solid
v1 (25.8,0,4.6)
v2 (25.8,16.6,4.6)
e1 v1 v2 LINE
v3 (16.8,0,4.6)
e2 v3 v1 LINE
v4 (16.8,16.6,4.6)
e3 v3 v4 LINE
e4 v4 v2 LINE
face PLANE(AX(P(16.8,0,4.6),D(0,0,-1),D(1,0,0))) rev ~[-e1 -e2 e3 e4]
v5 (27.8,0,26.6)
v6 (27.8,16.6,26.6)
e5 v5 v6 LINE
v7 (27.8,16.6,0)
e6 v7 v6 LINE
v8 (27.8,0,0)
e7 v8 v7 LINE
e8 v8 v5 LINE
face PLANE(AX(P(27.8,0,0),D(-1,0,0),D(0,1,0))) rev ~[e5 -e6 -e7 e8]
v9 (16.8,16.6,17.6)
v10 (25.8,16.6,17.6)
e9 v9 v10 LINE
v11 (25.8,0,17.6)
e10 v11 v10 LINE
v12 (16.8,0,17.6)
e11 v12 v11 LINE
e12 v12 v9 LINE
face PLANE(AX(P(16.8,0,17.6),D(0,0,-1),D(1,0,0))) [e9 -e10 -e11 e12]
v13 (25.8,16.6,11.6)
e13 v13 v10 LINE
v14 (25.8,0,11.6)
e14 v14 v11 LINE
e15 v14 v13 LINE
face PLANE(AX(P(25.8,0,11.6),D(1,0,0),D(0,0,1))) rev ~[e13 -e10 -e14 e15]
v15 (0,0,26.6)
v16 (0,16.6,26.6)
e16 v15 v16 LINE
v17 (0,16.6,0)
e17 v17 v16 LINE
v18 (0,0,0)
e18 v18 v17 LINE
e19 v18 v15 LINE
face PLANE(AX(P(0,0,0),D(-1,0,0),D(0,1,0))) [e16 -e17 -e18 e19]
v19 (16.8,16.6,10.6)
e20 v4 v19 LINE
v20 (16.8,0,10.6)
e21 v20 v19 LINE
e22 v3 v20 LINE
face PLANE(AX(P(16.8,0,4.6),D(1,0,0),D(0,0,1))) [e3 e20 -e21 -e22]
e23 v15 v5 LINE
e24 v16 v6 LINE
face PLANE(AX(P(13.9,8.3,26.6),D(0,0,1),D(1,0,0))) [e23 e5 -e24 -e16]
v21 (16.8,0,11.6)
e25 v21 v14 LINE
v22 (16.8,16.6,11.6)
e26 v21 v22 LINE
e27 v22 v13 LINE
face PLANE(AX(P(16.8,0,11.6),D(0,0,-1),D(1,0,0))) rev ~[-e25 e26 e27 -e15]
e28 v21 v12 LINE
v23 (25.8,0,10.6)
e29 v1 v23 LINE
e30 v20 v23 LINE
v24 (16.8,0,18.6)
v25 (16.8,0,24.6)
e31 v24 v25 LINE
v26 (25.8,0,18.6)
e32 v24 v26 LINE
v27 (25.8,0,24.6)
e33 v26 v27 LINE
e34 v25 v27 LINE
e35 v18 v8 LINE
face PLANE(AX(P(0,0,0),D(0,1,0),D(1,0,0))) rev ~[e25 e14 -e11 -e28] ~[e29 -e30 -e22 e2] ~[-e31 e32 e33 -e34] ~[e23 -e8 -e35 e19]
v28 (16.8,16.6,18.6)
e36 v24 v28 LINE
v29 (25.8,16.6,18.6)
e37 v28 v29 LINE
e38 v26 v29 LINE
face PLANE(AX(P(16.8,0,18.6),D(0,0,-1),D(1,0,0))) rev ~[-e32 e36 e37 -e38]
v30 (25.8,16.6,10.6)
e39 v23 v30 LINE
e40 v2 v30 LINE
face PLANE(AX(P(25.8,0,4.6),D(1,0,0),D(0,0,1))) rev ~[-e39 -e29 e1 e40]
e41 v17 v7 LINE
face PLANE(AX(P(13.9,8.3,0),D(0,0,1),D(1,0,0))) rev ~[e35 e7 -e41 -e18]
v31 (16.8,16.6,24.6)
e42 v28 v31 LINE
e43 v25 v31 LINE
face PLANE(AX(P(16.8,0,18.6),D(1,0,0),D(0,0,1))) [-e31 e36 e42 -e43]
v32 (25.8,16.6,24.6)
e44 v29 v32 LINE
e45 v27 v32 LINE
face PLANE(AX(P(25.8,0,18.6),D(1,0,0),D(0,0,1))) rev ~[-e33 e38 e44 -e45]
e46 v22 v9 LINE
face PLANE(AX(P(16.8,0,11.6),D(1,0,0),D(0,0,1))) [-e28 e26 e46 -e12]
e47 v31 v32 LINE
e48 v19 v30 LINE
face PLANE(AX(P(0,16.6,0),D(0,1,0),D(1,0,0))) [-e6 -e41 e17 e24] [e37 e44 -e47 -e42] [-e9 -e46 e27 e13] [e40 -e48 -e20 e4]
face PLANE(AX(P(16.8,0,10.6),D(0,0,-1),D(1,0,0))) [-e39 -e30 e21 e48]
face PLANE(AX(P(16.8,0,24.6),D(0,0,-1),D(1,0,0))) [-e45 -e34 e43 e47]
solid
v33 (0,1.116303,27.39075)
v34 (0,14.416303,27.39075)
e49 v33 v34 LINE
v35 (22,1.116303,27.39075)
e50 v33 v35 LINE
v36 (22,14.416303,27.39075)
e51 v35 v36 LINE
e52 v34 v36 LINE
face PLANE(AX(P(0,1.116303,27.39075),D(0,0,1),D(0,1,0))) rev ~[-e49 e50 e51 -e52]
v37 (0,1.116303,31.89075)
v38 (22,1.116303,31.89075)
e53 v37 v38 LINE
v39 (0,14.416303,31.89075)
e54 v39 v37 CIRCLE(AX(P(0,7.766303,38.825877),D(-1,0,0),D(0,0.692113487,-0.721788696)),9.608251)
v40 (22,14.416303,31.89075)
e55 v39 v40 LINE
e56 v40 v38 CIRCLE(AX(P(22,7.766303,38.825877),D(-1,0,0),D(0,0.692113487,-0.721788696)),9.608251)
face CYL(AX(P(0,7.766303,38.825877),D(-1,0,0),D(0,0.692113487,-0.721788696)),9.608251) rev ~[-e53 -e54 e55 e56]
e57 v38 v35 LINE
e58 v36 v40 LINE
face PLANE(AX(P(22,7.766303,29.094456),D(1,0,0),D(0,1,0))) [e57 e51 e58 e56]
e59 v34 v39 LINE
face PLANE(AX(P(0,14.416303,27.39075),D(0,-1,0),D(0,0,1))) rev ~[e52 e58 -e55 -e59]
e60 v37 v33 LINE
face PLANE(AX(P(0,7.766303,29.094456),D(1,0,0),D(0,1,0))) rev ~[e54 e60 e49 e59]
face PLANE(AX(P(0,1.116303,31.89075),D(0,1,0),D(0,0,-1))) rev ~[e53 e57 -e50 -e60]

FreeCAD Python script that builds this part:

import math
import FreeCAD as App
import Part
import Sketcher
from FreeCAD import Vector

doc = App.newDocument("Part")
body = doc.addObject("PartDesign::Body", "Body")

# Sketch on XY plane
sketch1 = body.newObject("Sketcher::SketchObject", "Sketch")
sketch1.AttachmentSupport = (doc.getObject("XY_Plane"), [""])
sketch1.MapMode = "FlatFace"
sketch1.addGeometry(Part.LineSegment(Vector(0, 17, 0), Vector(0, 0, 0)), False)
sketch1.addGeometry(Part.LineSegment(Vector(0, 0, 0), Vector(28, 0, 0)), False)
sketch1.addGeometry(Part.LineSegment(Vector(28, 0, 0), Vector(28, 17, 0)), False)
sketch1.addGeometry(Part.LineSegment(Vector(28, 17, 0), Vector(0, 17, 0)), False)
sketch1.addConstraint(Sketcher.Constraint("Coincident", 0, 2, 1, 1))
sketch1.addConstraint(Sketcher.Constraint("Coincident", 1, 2, 2, 1))
sketch1.addConstraint(Sketcher.Constraint("Coincident", 2, 2, 3, 1))
sketch1.addConstraint(Sketcher.Constraint("Coincident", 3, 2, 0, 1))
sketch1.addConstraint(Sketcher.Constraint("Vertical", 0))
sketch1.addConstraint(Sketcher.Constraint("Horizontal", 1))
sketch1.addConstraint(Sketcher.Constraint("Vertical", 2))
sketch1.addConstraint(Sketcher.Constraint("Horizontal", 3))
sketch1.addConstraint(Sketcher.Constraint("Coincident", 0, 2, -1, 1))
sketch1.addConstraint(Sketcher.Constraint("DistanceX", 1, 1, 1, 2, 27.8))
sketch1.addConstraint(Sketcher.Constraint("DistanceY", 0, 2, 0, 1, 16.6))
pad1 = body.newObject("PartDesign::Pad", "Pad")
pad1.Profile = sketch1
pad1.Length = 26.6

# Sketch on XZ plane
sketch2 = body.newObject("Sketcher::SketchObject", "Sketch001")
sketch2.AttachmentSupport = (doc.getObject("XZ_Plane"), [""])
sketch2.MapMode = "FlatFace"
sketch2.addGeometry(Part.LineSegment(Vector(17, 25, 0), Vector(17, 19, 0)), False)
sketch2.addGeometry(Part.LineSegment(Vector(17, 19, 0), Vector(26, 19, 0)), False)
sketch2.addGeometry(Part.LineSegment(Vector(26, 19, 0), Vector(26, 25, 0)), False)
sketch2.addGeometry(Part.LineSegment(Vector(26, 25, 0), Vector(17, 25, 0)), False)
sketch2.addGeometry(Part.LineSegment(Vector(17, 18, 0), Vector(17, 12, 0)), False)
sketch2.addGeometry(Part.LineSegment(Vector(17, 12, 0), Vector(26, 12, 0)), False)
sketch2.addGeometry(Part.LineSegment(Vector(26, 12, 0), Vector(26, 18, 0)), False)
sketch2.addGeometry(Part.LineSegment(Vector(26, 18, 0), Vector(17, 18, 0)), False)
sketch2.addGeometry(Part.LineSegment(Vector(17, 11, 0), Vector(17, 5, 0)), False)
sketch2.addGeometry(Part.LineSegment(Vector(17, 5, 0), Vector(26, 5, 0)), False)
sketch2.addGeometry(Part.LineSegment(Vector(26, 5, 0), Vector(26, 11, 0)), False)
sketch2.addGeometry(Part.LineSegment(Vector(26, 11, 0), Vector(17, 11, 0)), False)
sketch2.addConstraint(Sketcher.Constraint("Coincident", 0, 2, 1, 1))
sketch2.addConstraint(Sketcher.Constraint("Coincident", 1, 2, 2, 1))
sketch2.addConstraint(Sketcher.Constraint("Coincident", 2, 2, 3, 1))
sketch2.addConstraint(Sketcher.Constraint("Coincident", 3, 2, 0, 1))
sketch2.addConstraint(Sketcher.Constraint("Coincident", 4, 2, 5, 1))
sketch2.addConstraint(Sketcher.Constraint("Coincident", 5, 2, 6, 1))
sketch2.addConstraint(Sketcher.Constraint("Coincident", 6, 2, 7, 1))
sketch2.addConstraint(Sketcher.Constraint("Coincident", 7, 2, 4, 1))
sketch2.addConstraint(Sketcher.Constraint("Coincident", 8, 2, 9, 1))
sketch2.addConstraint(Sketcher.Constraint("Coincident", 9, 2, 10, 1))
sketch2.addConstraint(Sketcher.Constraint("Coincident", 10, 2, 11, 1))
sketch2.addConstraint(Sketcher.Constraint("Coincident", 11, 2, 8, 1))
sketch2.addConstraint(Sketcher.Constraint("Vertical", 0))
sketch2.addConstraint(Sketcher.Constraint("Horizontal", 1))
sketch2.addConstraint(Sketcher.Constraint("Vertical", 2))
sketch2.addConstraint(Sketcher.Constraint("Horizontal", 3))
sketch2.addConstraint(Sketcher.Constraint("Vertical", 4))
sketch2.addConstraint(Sketcher.Constraint("Horizontal", 5))
sketch2.addConstraint(Sketcher.Constraint("Vertical", 6))
sketch2.addConstraint(Sketcher.Constraint("Horizontal", 7))
sketch2.addConstraint(Sketcher.Constraint("Vertical", 8))
sketch2.addConstraint(Sketcher.Constraint("Horizontal", 9))
sketch2.addConstraint(Sketcher.Constraint("Vertical", 10))
sketch2.addConstraint(Sketcher.Constraint("Horizontal", 11))
sketch2.addConstraint(Sketcher.Constraint("Vertical", 3, 2, 4, 2))
sketch2.addConstraint(Sketcher.Constraint("Vertical", 2, 2, 5, 2))
sketch2.addConstraint(Sketcher.Constraint("Vertical", 7, 2, 8, 2))
sketch2.addConstraint(Sketcher.Constraint("Vertical", 6, 2, 9, 2))
sketch2.addConstraint(Sketcher.Constraint("Equal", 2, 4))
sketch2.addConstraint(Sketcher.Constraint("Equal", 6, 8))
sketch2.addConstraint(Sketcher.Constraint("DistanceX", 1, 1, 1, 2, 9.0))
sketch2.addConstraint(Sketcher.Constraint("DistanceY", 0, 2, 0, 1, 6.0))
sketch2.addConstraint(Sketcher.Constraint("DistanceY", 4, 2, 0, 2, 7.0))
sketch2.addConstraint(Sketcher.Constraint("DistanceY", 8, 2, 4, 2, 7.0))
sketch2.addConstraint(Sketcher.Constraint("DistanceX", -1, 1, 0, 2, 16.8))
sketch2.addConstraint(Sketcher.Constraint("DistanceY", -1, 1, 0, 2, 18.6))
pocket1 = body.newObject("PartDesign::Pocket", "Pocket")
pocket1.Profile = sketch2
pocket1.Length = 16.6
body2 = doc.addObject("PartDesign::Body", "Body001")

# Sketch on YZ plane
sketch3 = body2.newObject("Sketcher::SketchObject", "Sketch002")
sketch3.AttachmentSupport = (doc.getObject("YZ_Plane001"), [""])
sketch3.MapMode = "FlatFace"
sketch3.addGeometry(Part.LineSegment(Vector(1.1, 27.4, 0), Vector(14.4, 27.4, 0)), False)
sketch3.addGeometry(Part.LineSegment(Vector(14.4, 27.4, 0), Vector(14.4, 31.9, 0)), False)
sketch3.addGeometry(Part.ArcOfCircle(Part.Circle(Vector(7.8, 38.8, 0), Vector(0, 0, 1), 9.6), math.radians(-134), math.radians(-46)), False)
sketch3.addGeometry(Part.LineSegment(Vector(1.1, 31.9, 0), Vector(1.1, 27.4, 0)), False)
sketch3.addConstraint(Sketcher.Constraint("Coincident", 0, 2, 1, 1))
sketch3.addConstraint(Sketcher.Constraint("Coincident", 1, 2, 2, 2))
sketch3.addConstraint(Sketcher.Constraint("Coincident", 2, 1, 3, 1))
sketch3.addConstraint(Sketcher.Constraint("Coincident", 3, 2, 0, 1))
sketch3.addConstraint(Sketcher.Constraint("Horizontal", 0))
sketch3.addConstraint(Sketcher.Constraint("Vertical", 1))
sketch3.addConstraint(Sketcher.Constraint("Vertical", 3))
sketch3.addConstraint(Sketcher.Constraint("Horizontal", 1, 2, 2, 1))
sketch3.addConstraint(Sketcher.Constraint("DistanceX", 0, 1, 0, 2, 13.3))
sketch3.addConstraint(Sketcher.Constraint("DistanceY", 1, 1, 1, 2, 4.5))
sketch3.addConstraint(Sketcher.Constraint("Radius", 2, 9.608251))
sketch3.addConstraint(Sketcher.Constraint("DistanceY", -1, 1, 0, 2, 27.39075))
sketch3.addConstraint(Sketcher.Constraint("DistanceX", -1, 1, 2, 3, 7.766303))
pad2 = body2.newObject("PartDesign::Pad", "Pad001")
pad2.Profile = sketch3
pad2.Length = 22

doc.recompute()
